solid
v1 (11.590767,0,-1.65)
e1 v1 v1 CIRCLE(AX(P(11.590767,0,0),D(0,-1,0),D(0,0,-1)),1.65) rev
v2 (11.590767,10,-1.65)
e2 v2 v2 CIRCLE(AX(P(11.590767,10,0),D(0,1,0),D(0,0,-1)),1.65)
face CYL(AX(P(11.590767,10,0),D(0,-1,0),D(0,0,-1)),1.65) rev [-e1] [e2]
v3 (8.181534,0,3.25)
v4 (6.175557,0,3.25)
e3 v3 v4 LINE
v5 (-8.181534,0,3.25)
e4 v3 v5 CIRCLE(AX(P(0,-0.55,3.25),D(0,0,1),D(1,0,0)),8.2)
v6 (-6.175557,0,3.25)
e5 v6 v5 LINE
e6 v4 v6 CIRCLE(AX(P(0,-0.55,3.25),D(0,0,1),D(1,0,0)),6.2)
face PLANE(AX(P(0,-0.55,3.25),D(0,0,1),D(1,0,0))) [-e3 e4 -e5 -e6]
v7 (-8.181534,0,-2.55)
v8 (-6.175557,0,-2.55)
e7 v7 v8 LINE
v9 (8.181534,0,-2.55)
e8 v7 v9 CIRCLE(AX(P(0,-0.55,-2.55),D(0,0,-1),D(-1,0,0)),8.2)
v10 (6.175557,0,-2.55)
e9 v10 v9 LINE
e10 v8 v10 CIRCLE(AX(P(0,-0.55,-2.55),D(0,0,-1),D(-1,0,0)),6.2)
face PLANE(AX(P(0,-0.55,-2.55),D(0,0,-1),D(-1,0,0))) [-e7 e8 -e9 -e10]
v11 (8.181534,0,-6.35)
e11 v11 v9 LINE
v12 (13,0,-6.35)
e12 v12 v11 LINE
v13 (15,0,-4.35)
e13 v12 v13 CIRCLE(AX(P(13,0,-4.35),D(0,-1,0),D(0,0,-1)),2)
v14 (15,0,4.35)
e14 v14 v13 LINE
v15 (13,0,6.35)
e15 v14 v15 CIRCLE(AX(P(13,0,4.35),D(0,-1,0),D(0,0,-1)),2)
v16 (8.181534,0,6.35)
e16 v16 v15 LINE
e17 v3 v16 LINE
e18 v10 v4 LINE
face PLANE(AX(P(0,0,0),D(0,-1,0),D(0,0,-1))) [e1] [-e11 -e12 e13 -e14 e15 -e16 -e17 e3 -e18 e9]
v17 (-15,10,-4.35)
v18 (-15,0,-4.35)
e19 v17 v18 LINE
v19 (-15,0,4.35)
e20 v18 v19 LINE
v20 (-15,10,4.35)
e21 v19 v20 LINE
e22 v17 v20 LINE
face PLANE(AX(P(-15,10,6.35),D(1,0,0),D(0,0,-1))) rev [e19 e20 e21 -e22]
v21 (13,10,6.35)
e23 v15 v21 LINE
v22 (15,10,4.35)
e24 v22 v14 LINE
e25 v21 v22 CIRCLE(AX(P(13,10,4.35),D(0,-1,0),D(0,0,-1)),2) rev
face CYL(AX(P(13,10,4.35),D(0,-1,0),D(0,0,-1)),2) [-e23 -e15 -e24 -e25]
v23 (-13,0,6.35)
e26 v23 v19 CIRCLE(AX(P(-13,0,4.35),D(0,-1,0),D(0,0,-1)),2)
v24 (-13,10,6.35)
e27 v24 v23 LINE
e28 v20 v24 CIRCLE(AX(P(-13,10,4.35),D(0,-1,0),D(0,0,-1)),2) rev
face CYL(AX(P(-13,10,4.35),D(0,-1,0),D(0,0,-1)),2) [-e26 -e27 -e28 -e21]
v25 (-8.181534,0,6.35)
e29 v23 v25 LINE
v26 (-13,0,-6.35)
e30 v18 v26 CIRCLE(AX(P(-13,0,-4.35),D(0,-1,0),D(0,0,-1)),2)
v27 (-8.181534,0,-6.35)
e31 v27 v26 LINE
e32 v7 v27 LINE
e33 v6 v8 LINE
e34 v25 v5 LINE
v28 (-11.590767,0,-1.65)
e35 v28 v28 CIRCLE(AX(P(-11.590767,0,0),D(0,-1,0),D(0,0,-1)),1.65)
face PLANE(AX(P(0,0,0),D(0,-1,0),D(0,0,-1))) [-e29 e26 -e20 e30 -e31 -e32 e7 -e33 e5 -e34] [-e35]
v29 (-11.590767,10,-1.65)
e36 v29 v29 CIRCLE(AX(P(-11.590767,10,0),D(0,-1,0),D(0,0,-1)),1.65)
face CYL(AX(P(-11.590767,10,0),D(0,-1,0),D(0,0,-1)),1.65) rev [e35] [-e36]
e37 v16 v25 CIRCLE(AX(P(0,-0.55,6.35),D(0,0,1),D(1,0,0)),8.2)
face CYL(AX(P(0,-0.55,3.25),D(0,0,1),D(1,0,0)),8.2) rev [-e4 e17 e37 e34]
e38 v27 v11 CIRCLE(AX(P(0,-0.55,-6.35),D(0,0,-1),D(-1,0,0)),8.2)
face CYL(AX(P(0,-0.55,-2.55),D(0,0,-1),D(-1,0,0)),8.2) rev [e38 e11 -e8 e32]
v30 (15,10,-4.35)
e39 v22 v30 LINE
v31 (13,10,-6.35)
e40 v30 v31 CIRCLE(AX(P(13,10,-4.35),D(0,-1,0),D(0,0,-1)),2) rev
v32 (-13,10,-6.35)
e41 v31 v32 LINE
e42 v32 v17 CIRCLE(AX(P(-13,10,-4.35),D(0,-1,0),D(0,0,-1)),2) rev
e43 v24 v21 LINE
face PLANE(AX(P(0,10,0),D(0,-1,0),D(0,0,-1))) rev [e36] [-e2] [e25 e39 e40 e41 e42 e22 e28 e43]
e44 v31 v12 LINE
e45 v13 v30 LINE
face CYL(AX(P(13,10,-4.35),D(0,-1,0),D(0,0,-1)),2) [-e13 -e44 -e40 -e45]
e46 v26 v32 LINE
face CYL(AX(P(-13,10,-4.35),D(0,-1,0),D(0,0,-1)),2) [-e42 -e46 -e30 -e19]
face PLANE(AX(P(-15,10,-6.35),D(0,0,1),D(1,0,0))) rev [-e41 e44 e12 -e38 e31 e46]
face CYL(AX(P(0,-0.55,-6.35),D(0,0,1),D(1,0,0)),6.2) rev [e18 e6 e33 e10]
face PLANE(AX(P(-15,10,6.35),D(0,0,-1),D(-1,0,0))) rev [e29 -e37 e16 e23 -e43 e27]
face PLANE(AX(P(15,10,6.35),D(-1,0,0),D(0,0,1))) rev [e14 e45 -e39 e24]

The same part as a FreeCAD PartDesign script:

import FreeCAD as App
import Part
import Sketcher

V = App.Vector


def edges_at(feature, points):
    """Names of the edges that pass closest to the given points."""
    edges = feature.Shape.Edges
    near = lambda p: min(range(len(edges)), key=lambda i: edges[i].distToShape(Part.Vertex(*p))[0])
    return sorted({f"Edge{near(p) + 1}" for p in points})

doc = App.newDocument("Part")
body = doc.addObject("PartDesign::Body", "Body")

# Sketch on XZ plane
sketch1 = body.newObject("Sketcher::SketchObject", "Sketch")
sketch1.AttachmentSupport = (doc.getObject("XZ_Plane"), [""])
sketch1.MapMode = "FlatFace"
sketch1.addGeometry([
    Part.LineSegment(V(-15, -6, 0), V(-15, 6, 0)),
    Part.LineSegment(V(-15, 6, 0), V(15, 6, 0)),
    Part.LineSegment(V(15, 6, 0), V(15, -6, 0)),
    Part.LineSegment(V(15, -6, 0), V(-15, -6, 0)),
], False)
sketch1.addConstraint([
    Sketcher.Constraint("Coincident", 0, 2, 1, 1),
    Sketcher.Constraint("Coincident", 1, 2, 2, 1),
    Sketcher.Constraint("Coincident", 2, 2, 3, 1),
    Sketcher.Constraint("Coincident", 3, 2, 0, 1),
    Sketcher.Constraint("Vertical", 0),
    Sketcher.Constraint("Horizontal", 1),
    Sketcher.Constraint("Vertical", 2),
    Sketcher.Constraint("Horizontal", 3),
    Sketcher.Constraint("Symmetric", 0, 2, 2, 2, -1, 1),
    Sketcher.Constraint("DistanceX", 1, 1, 1, 2, 30.0),
    Sketcher.Constraint("DistanceY", 0, 1, 0, 2, 12.7),
])
pad1 = body.newObject("PartDesign::Pad", "Pad")
pad1.Profile = sketch1
pad1.Length = 10
pad1.Reversed = True

# Sketch on XY plane
sketch2 = body.newObject("Sketcher::SketchObject", "Sketch001")
sketch2.AttachmentSupport = (doc.getObject("XY_Plane"), [""])
sketch2.MapMode = "FlatFace"
sketch2.AttachmentOffset = App.Placement(V(0, 0, -6.35), App.Rotation())
sketch2.addGeometry(Part.Circle(V(0, -1, 0), V(0, 0, 1), 8), False)
sketch2.addConstraint([
    Sketcher.Constraint("PointOnObject", 0, 3, -2),
    Sketcher.Constraint("Diameter", 0, 16.4),
    Sketcher.Constraint("DistanceY", 0, 3, -1, 1, 0.55),
])
pocket1 = body.newObject("PartDesign::Pocket", "Pocket")
pocket1.Profile = sketch2
pocket1.Length = 3.8
pocket1.Reversed = True

# Sketch on XY plane
sketch3 = body.newObject("Sketcher::SketchObject", "Sketch002")
sketch3.AttachmentSupport = (doc.getObject("XY_Plane"), [""])
sketch3.MapMode = "FlatFace"
sketch3.AttachmentOffset = App.Placement(V(0, 0, 3.25), App.Rotation())
sketch3.addGeometry(Part.Circle(V(0, -1, 0), V(0, 0, 1), 8), False)
sketch3.addConstraint([
    Sketcher.Constraint("PointOnObject", 0, 3, -2),
    Sketcher.Constraint("Diameter", 0, 16.4),
    Sketcher.Constraint("DistanceY", 0, 3, -1, 1, 0.55),
])
pocket2 = body.newObject("PartDesign::Pocket", "Pocket001")
pocket2.Profile = sketch3
pocket2.Length = 3.1
pocket2.Reversed = True

# Sketch on XY plane
sketch4 = body.newObject("Sketcher::SketchObject", "Sketch003")
sketch4.AttachmentSupport = (doc.getObject("XY_Plane"), [""])
sketch4.MapMode = "FlatFace"
sketch4.AttachmentOffset = App.Placement(V(0, 0, 3.25), App.Rotation())
sketch4.addGeometry(Part.Circle(V(0, -1, 0), V(0, 0, 1), 6), False)
sketch4.addConstraint([
    Sketcher.Constraint("PointOnObject", 0, 3, -2),
    Sketcher.Constraint("Diameter", 0, 12.4),
    Sketcher.Constraint("DistanceY", 0, 3, -1, 1, 0.55),
])
pocket3 = body.newObject("PartDesign::Pocket", "Pocket002")
pocket3.Profile = sketch4
pocket3.Type = "ThroughAll"
pocket3.Midplane = True
doc.recompute()

fillet = body.newObject("PartDesign::Fillet", "Fillet")
fillet.Base = (pocket3, edges_at(pocket3, [
    (15, 5, 6.35),
    (-15, 5, 6.35),
    (-15, 5, -6.35),
    (15, 5, -6.35),
]))
fillet.Radius = 2

# Sketch on XZ plane
sketch5 = body.newObject("Sketcher::SketchObject", "Sketch004")
sketch5.AttachmentSupport = (doc.getObject("XZ_Plane"), [""])
sketch5.MapMode = "FlatFace"
sketch5.addGeometry(Part.Circle(V(-11.6, 0, 0), V(0, 0, 1), 1.6), False)
sketch5.addConstraint([
    Sketcher.Constraint("PointOnObject", 0, 3, -1),
    Sketcher.Constraint("Diameter", 0, 3.3),
    Sketcher.Constraint("DistanceX", 0, 3, -1, 1, 11.590767),
])
pocket4 = body.newObject("PartDesign::Pocket", "Pocket003")
pocket4.Profile = sketch5
pocket4.Length = 40.226823
pocket4.Midplane = True
doc.recompute()

mirrored = body.newObject("PartDesign::Mirrored", "Mirrored")
mirrored.Originals = [pocket4]
mirrored.MirrorPlane = (doc.getObject("YZ_Plane"), [""])
body.Tip = mirrored

doc.recompute()
